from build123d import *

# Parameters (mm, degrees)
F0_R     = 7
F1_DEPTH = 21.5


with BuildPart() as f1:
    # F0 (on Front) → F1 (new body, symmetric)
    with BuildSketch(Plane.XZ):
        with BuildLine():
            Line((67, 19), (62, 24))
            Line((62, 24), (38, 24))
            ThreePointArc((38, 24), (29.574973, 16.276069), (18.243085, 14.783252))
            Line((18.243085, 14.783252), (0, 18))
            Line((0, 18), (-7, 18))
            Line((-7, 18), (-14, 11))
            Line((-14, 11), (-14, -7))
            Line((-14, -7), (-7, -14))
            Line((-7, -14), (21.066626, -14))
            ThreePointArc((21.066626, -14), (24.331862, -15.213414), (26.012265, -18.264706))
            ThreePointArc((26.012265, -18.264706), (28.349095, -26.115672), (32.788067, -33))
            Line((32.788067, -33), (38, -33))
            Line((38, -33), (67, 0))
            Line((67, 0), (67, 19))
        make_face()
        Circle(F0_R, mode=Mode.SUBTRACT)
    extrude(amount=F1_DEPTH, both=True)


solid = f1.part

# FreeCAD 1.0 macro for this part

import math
import FreeCAD as App
import Part
import Sketcher
from FreeCAD import Vector
Q = App.Units.Quantity

doc = App.newDocument("Part")
body = doc.addObject("PartDesign::Body", "Body")

sketch1 = body.newObject("Sketcher::SketchObject", "Sketch")
sketch1.AttachmentSupport = (doc.getObject("XZ_Plane"), [""])
sketch1.MapMode = "FlatFace"
sketch1.addGeometry([
    Part.LineSegment(Vector(67, 19, 0), Vector(62, 24, 0)),
    Part.LineSegment(Vector(62, 24, 0), Vector(38, 24, 0)),
    Part.ArcOfCircle(Part.Circle(Vector(22, 33, 0), Vector(0, 0, 1), 19), math.radians(-100), math.radians(-30)),
    Part.LineSegment(Vector(18, 15, 0), Vector(0, 18, 0)),
    Part.LineSegment(Vector(0, 18, 0), Vector(-7, 18, 0)),
    Part.LineSegment(Vector(-7, 18, 0), Vector(-14, 11, 0)),
    Part.LineSegment(Vector(-14, 11, 0), Vector(-14, -7, 0)),
    Part.LineSegment(Vector(-14, -7, 0), Vector(-7, -14, 0)),
    Part.LineSegment(Vector(-7, -14, 0), Vector(21, -14, 0)),
    Part.ArcOfCircle(Part.Circle(Vector(21, -19, 0), Vector(0, 0, 1), 5), math.radians(8), math.radians(90)),
    Part.ArcOfCircle(Part.Circle(Vector(55, -14, 0), Vector(0, 0, 1), 29), math.radians(-172), math.radians(-139)),
    Part.LineSegment(Vector(33, -33, 0), Vector(38, -33, 0)),
    Part.LineSegment(Vector(38, -33, 0), Vector(67, 0, 0)),
    Part.LineSegment(Vector(67, 0, 0), Vector(67, 19, 0)),
    Part.Circle(Vector(0, 0, 0), Vector(0, 0, 1), 7),
], False)
sketch1.addConstraint([
    Sketcher.Constraint("Coincident", 0, 2, 1, 1),
    Sketcher.Constraint("Coincident", 1, 2, 2, 2),
    Sketcher.Constraint("Tangent", 2, 1, 3, 1),
    Sketcher.Constraint("Coincident", 3, 2, 4, 1),
    Sketcher.Constraint("Coincident", 4, 2, 5, 1),
    Sketcher.Constraint("Coincident", 5, 2, 6, 1),
    Sketcher.Constraint("Coincident", 6, 2, 7, 1),
    Sketcher.Constraint("Coincident", 7, 2, 8, 1),
    Sketcher.Constraint("Tangent", 8, 2, 9, 2),
    Sketcher.Constraint("Tangent", 9, 1, 10, 1),
    Sketcher.Constraint("Coincident", 10, 2, 11, 1),
    Sketcher.Constraint("Coincident", 11, 2, 12, 1),
    Sketcher.Constraint("Coincident", 12, 2, 13, 1),
    Sketcher.Constraint("Coincident", 13, 2, 0, 1),
    Sketcher.Constraint("Horizontal", 1),
    Sketcher.Constraint("Horizontal", 4),
    Sketcher.Constraint("Vertical", 6),
    Sketcher.Constraint("Horizontal", 8),
    Sketcher.Constraint("Horizontal", 11),
    Sketcher.Constraint("Vertical", 13),
    Sketcher.Constraint("Coincident", 14, 3, -1, 1),
    Sketcher.Constraint("PointOnObject", 3, 2, -2),
    Sketcher.Constraint("PointOnObject", 12, 2, -1),
    Sketcher.Constraint("Perpendicular", 0, 5),
    Sketcher.Constraint("Perpendicular", 5, 7),
    Sketcher.Constraint("Horizontal", 10, 3, 7, 2),
    Sketcher.Constraint("Vertical", 4, 2, 7, 2),
    Sketcher.Constraint("Vertical", 1, 2, 11, 2),
    Sketcher.Constraint("Equal", 5, 7),
    Sketcher.Constraint("Diameter", 14, Q("14 mm")),
    Sketcher.Constraint("Radius", 2, Q("18.999999 mm")),
    Sketcher.Constraint("Radius", 9, Q("5.000001 mm")),
    Sketcher.Constraint("Radius", 10, Q("29 mm")),
    Sketcher.Constraint("DistanceX", 1, 2, 1, 1, Q("24 mm")),
    Sketcher.Constraint("DistanceX", 4, 2, 4, 1, Q("7 mm")),
    Sketcher.Constraint("DistanceY", 6, 2, 6, 1, Q("18 mm")),
    Sketcher.Constraint("DistanceY", 13, 1, 13, 2, Q("19 mm")),
    Sketcher.Constraint("Angle", 3, Q("170 deg")),
    Sketcher.Constraint("DistanceY", 9, 3, -1, 1, Q("19.000001 mm")),
    Sketcher.Constraint("DistanceX", -1, 1, 0, 2, Q("62 mm")),
    Sketcher.Constraint("DistanceY", -1, 1, 0, 2, Q("24 mm")),
    Sketcher.Constraint("DistanceY", -1, 1, 3, 2, Q("18 mm")),
    Sketcher.Constraint("DistanceY", 10, 2, -1, 1, Q("33 mm")),
    Sketcher.Constraint("DistanceX", 8, 1, 8, 2, Q("28.066626 mm")),
])
pad1 = body.newObject("PartDesign::Pad", "Pad")
pad1.Profile = sketch1
pad1.Length = 43
pad1.Midplane = True

doc.recompute()
